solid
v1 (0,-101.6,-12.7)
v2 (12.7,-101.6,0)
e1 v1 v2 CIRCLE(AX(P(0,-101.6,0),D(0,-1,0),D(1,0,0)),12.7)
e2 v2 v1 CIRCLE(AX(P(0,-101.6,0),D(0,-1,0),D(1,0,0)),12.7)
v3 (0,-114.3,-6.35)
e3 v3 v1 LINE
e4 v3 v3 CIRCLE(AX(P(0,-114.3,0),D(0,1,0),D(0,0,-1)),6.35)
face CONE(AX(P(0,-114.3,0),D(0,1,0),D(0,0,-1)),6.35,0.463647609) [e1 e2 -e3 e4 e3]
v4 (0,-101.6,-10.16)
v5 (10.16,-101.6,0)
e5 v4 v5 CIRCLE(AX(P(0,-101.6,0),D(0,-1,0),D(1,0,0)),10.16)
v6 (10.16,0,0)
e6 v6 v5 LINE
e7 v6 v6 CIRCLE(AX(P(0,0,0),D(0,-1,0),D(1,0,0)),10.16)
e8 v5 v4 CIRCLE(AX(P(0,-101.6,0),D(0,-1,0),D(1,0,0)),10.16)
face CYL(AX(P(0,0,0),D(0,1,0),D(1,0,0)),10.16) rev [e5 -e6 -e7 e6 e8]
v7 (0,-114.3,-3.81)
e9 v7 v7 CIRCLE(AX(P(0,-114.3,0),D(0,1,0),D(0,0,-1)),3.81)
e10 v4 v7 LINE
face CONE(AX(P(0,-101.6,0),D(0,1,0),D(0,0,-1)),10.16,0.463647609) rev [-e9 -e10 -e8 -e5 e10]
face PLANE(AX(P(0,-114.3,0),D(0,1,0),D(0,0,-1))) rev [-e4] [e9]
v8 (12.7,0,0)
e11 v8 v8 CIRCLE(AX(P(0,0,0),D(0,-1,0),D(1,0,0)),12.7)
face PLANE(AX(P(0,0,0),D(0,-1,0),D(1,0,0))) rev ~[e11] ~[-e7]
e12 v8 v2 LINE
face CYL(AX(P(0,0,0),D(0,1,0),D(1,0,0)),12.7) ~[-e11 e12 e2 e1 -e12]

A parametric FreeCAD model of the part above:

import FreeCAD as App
import Part
import Sketcher
from FreeCAD import Vector
Q = App.Units.Quantity

doc = App.newDocument("Part")
body = doc.addObject("PartDesign::Body", "Body")

# Sketch on XZ plane
sketch1 = doc.addObject("Sketcher::SketchObject", "Sketch")
body.addObject(sketch1)
sketch1.AttachmentSupport = (doc.XZ_Plane, [""])
sketch1.MapMode = "FlatFace"
sketch1.addGeometry(Part.Circle(Vector(0, 0, 0), Vector(0, 0, 1), 13), False)
sketch1.addGeometry(Part.Circle(Vector(0, 0, 0), Vector(0, 0, 1), 10), False)
sketch1.addConstraint(Sketcher.Constraint("Coincident", 0, 3, -1, 1))
sketch1.addConstraint(Sketcher.Constraint("Coincident", 1, 3, -1, 1))
sketch1.addConstraint(Sketcher.Constraint("Diameter", 0, Q("1 in")))
sketch1.addConstraint(Sketcher.Constraint("Diameter", 1, Q("0.8 in")))
pad1 = doc.addObject("PartDesign::Pad", "Pad")
body.addObject(pad1)
pad1.Profile = sketch1
pad1.Length = Q("4 in")

# Sketch on YZ plane
sketch2 = doc.addObject("Sketcher::SketchObject", "Sketch001")
body.addObject(sketch2)
sketch2.AttachmentSupport = (doc.YZ_Plane, [""])
sketch2.MapMode = "FlatFace"
sketch2.addGeometry(Part.LineSegment(Vector(-114.3, -3.8, 0), Vector(-114.3, -6.3, 0)), False)
sketch2.addGeometry(Part.LineSegment(Vector(-114.3, -6.3, 0), Vector(-101.6, -12.7, 0)), False)
sketch2.addGeometry(Part.LineSegment(Vector(-101.6, -12.7, 0), Vector(-101.6, -10.2, 0)), False)
sketch2.addGeometry(Part.LineSegment(Vector(-101.6, -10.2, 0), Vector(-114.3, -3.8, 0)), False)
sketch2.addConstraint(Sketcher.Constraint("Coincident", 0, 2, 1, 1))
sketch2.addConstraint(Sketcher.Constraint("Coincident", 1, 2, 2, 1))
sketch2.addConstraint(Sketcher.Constraint("Coincident", 2, 2, 3, 1))
sketch2.addConstraint(Sketcher.Constraint("Coincident", 3, 2, 0, 1))
sketch2.addConstraint(Sketcher.Constraint("Vertical", 0))
sketch2.addConstraint(Sketcher.Constraint("Vertical", 2))
sketch2.addConstraint(Sketcher.Constraint("Parallel", 1, 3))
sketch2.addConstraint(Sketcher.Constraint("DistanceY", 0, 2, 0, 1, Q("0.1 in")))
sketch2.addConstraint(Sketcher.Constraint("DistanceX", 1, 2, -1, 1, Q("4 in")))
sketch2.addConstraint(Sketcher.Constraint("DistanceX", 0, 2, -1, 1, Q("4.5 in")))
sketch2.addConstraint(Sketcher.Constraint("DistanceY", 1, 2, -1, 1, Q("0.5 in")))
sketch2.addConstraint(Sketcher.Constraint("DistanceY", 0, 2, -1, 1, Q("0.25 in")))
revolution = doc.addObject("PartDesign::Revolution", "Revolution")
body.addObject(revolution)
revolution.Profile = sketch2
revolution.ReferenceAxis = (sketch2, ["H_Axis"])
revolution.Angle = 360

doc.recompute()
